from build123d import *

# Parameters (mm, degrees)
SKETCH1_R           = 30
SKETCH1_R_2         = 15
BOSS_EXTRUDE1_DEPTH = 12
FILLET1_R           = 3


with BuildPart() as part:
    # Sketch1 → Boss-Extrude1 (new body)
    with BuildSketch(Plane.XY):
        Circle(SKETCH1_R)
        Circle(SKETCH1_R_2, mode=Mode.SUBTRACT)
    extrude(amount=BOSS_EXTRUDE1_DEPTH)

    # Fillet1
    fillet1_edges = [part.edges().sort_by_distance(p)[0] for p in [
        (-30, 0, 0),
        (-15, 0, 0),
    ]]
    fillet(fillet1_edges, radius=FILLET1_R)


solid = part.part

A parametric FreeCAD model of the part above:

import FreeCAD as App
import Part
import Sketcher
from FreeCAD import Vector
Q = App.Units.Quantity


def edges_at(feature, points):
    """Names of the edges that pass closest to the given points."""
    edges = feature.Shape.Edges
    near = lambda p: min(range(len(edges)), key=lambda i: edges[i].distToShape(Part.Vertex(*p))[0])
    return sorted({f"Edge{near(p) + 1}" for p in points})

doc = App.newDocument("Part")
body = doc.addObject("PartDesign::Body", "Body")

sketch1 = doc.addObject("Sketcher::SketchObject", "Sketch")
body.addObject(sketch1)
sketch1.AttachmentSupport = (doc.XY_Plane, [""])
sketch1.MapMode = "FlatFace"
sketch1.addGeometry([
    Part.Circle(Vector(0, 0, 0), Vector(0, 0, 1), 30),
    Part.Circle(Vector(0, 0, 0), Vector(0, 0, 1), 15),
], False)
sketch1.addConstraint([
    Sketcher.Constraint("Coincident", 0, 3, -1, 1),
    Sketcher.Constraint("Coincident", 1, 3, -1, 1),
    Sketcher.Constraint("Diameter", 0, Q("60 mm")),
    Sketcher.Constraint("Diameter", 1, Q("30 mm")),
])
pad1 = doc.addObject("PartDesign::Pad", "Pad")
body.addObject(pad1)
pad1.Profile = sketch1
pad1.Length = 12
doc.recompute()

fillet = doc.addObject("PartDesign::Fillet", "Fillet")
body.addObject(fillet)
fillet.Base = (pad1, edges_at(pad1, [(-30, 0, 0), (-15, 0, 0)]))
fillet.Radius = 3

doc.recompute()
